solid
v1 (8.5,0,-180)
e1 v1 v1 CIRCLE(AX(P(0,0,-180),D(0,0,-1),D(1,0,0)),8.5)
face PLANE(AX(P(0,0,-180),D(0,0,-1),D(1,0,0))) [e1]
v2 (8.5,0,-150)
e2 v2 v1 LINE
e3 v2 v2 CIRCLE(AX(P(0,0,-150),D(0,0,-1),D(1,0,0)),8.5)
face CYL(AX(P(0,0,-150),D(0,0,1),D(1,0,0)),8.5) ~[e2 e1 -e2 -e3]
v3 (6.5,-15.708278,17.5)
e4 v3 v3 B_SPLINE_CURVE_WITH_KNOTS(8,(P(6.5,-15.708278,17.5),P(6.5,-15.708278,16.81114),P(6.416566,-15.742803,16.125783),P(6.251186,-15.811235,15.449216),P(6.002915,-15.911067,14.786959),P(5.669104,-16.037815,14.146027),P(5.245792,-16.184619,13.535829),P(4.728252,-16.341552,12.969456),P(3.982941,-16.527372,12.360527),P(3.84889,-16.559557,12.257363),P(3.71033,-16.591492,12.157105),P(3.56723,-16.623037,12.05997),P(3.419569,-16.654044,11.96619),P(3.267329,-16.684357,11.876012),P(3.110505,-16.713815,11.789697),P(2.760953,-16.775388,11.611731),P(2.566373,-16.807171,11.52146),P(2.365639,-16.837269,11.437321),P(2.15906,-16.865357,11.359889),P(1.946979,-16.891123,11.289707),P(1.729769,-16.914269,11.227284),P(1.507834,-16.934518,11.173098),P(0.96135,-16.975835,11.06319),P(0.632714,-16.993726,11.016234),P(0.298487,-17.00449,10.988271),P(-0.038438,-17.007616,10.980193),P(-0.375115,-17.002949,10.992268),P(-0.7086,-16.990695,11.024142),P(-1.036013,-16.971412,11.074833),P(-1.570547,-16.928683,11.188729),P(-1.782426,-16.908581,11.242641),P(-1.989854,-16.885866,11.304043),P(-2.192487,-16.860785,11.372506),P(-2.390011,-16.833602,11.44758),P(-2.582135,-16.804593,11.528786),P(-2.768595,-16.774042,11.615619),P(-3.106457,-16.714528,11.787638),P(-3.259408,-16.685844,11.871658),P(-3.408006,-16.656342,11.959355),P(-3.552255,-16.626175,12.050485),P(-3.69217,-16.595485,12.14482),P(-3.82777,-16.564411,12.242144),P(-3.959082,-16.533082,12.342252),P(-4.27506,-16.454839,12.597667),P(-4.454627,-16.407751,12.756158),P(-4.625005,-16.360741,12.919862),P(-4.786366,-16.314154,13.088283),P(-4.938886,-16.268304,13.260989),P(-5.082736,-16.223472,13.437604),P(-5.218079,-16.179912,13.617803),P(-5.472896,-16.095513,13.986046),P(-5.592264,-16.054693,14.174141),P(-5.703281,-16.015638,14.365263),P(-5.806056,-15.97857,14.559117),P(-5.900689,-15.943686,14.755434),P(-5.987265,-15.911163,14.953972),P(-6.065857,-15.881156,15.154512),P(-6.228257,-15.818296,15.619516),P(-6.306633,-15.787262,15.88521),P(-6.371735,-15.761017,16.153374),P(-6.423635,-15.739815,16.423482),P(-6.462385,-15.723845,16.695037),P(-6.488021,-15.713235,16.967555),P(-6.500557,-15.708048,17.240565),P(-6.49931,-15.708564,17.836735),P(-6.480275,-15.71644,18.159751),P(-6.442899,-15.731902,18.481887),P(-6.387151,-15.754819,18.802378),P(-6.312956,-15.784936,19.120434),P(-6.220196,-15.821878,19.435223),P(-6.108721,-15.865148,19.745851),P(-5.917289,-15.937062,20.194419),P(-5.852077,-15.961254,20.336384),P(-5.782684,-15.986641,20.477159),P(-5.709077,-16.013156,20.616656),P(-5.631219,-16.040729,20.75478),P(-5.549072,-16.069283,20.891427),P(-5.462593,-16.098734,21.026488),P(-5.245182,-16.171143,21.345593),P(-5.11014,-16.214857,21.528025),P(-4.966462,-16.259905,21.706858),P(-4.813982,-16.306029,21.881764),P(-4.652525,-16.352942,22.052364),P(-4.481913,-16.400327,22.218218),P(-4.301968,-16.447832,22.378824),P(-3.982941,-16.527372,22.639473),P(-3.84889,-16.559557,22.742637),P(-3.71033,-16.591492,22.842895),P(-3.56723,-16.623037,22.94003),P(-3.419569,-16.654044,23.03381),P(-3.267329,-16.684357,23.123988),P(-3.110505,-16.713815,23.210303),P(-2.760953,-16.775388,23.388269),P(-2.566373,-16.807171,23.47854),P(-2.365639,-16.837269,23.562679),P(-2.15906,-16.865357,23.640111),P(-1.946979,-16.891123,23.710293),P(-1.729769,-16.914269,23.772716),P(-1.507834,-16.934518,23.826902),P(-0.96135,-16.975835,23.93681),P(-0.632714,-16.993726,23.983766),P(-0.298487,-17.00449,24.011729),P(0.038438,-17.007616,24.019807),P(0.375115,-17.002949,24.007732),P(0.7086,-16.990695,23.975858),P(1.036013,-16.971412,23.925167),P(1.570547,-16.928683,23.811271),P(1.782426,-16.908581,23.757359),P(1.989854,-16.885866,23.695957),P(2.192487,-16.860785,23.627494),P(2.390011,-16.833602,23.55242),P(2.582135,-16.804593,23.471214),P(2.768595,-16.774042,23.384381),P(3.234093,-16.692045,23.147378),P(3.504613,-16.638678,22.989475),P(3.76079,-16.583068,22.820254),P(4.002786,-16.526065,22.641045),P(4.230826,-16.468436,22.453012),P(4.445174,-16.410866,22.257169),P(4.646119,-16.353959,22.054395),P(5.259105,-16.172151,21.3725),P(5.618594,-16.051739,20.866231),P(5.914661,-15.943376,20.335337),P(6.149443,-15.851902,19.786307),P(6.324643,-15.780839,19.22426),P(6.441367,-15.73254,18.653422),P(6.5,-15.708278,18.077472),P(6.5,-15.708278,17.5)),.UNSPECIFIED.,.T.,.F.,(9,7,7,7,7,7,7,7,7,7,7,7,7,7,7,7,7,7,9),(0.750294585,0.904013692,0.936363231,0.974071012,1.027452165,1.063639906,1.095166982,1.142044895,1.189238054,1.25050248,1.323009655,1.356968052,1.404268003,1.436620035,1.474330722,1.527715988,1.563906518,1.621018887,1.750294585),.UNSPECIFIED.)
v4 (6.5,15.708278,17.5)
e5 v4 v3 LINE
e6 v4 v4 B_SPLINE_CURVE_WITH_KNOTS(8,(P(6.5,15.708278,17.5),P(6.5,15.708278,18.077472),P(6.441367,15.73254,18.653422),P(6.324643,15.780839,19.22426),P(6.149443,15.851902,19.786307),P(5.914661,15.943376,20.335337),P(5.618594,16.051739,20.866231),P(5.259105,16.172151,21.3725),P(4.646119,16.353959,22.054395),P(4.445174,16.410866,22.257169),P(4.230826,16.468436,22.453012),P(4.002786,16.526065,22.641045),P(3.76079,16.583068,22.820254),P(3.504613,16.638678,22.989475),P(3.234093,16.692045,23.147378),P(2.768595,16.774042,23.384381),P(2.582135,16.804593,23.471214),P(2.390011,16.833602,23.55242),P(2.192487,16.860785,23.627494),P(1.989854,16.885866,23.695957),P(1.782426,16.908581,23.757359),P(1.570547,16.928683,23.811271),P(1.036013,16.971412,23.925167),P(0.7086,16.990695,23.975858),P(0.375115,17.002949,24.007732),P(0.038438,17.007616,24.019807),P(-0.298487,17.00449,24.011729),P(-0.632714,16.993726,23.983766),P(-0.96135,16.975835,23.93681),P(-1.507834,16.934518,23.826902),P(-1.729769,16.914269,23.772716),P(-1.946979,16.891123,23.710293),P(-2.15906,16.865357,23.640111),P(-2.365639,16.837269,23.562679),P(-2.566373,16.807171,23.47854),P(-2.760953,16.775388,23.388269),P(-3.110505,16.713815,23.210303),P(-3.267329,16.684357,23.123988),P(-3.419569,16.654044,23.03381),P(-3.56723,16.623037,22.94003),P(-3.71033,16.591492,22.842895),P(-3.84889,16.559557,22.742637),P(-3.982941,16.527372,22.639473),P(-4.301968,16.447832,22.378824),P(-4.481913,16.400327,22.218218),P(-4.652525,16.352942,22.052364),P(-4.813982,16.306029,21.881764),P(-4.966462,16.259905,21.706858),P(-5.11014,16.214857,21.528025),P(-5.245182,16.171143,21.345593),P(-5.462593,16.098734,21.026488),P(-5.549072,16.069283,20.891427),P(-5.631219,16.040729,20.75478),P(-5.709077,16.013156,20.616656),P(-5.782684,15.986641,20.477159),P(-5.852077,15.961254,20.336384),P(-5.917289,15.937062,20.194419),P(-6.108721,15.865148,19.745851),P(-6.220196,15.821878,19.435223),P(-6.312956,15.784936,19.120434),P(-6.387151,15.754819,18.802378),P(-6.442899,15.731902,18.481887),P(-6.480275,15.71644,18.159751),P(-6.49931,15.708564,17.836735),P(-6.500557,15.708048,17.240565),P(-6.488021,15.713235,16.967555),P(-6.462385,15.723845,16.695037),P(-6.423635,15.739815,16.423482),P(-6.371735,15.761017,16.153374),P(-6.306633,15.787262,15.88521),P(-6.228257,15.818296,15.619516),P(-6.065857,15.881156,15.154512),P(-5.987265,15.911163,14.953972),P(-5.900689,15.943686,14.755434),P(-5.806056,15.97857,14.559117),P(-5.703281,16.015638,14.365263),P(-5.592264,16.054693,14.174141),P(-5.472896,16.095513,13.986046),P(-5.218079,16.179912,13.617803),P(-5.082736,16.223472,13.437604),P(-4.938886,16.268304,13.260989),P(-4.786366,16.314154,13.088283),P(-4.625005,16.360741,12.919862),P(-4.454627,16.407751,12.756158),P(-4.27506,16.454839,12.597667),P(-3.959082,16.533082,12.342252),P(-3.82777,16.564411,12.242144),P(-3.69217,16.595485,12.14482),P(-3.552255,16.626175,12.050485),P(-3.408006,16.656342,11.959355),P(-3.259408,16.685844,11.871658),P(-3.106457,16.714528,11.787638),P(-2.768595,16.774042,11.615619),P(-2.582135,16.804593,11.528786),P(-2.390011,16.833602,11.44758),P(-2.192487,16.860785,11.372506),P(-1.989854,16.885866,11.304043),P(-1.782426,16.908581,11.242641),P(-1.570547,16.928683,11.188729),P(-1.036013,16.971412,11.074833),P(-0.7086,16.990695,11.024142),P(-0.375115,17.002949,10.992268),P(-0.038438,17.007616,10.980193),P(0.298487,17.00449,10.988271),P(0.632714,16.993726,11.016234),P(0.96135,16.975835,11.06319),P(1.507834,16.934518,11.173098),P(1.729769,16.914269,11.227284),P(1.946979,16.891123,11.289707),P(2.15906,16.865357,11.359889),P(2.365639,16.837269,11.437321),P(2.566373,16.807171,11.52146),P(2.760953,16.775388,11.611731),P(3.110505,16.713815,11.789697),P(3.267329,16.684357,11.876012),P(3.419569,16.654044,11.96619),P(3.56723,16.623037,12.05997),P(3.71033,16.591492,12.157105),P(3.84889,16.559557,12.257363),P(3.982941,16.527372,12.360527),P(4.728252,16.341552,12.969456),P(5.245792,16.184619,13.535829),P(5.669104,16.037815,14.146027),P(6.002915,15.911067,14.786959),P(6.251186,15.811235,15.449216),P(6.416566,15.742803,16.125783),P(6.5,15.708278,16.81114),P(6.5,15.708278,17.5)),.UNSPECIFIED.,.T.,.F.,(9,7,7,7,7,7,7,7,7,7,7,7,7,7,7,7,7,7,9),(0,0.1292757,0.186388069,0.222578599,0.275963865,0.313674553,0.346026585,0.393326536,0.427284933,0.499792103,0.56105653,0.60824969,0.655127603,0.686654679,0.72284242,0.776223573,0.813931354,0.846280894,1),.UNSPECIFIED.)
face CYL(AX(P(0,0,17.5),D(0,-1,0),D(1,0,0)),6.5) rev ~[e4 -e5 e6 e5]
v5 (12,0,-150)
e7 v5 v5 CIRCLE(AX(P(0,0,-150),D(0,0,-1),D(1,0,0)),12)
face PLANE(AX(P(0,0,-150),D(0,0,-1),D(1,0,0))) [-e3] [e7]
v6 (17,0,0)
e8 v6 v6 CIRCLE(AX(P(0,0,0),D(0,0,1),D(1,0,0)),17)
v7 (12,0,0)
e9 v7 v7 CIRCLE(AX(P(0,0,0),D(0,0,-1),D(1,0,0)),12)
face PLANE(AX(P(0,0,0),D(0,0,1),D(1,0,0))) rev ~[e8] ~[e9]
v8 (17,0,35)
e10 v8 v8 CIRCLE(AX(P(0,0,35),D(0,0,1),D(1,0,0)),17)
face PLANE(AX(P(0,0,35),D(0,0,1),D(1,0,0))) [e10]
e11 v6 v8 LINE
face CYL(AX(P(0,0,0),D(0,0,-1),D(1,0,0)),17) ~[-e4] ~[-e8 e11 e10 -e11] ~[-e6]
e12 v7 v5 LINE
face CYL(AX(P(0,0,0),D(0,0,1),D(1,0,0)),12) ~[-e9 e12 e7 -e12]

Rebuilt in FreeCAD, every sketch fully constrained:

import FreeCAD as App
import Part
import Sketcher

V = App.Vector

doc = App.newDocument("Part")
body = doc.addObject("PartDesign::Body", "Body")

sketch1 = body.newObject("Sketcher::SketchObject", "Sketch")
sketch1.AttachmentSupport = (doc.getObject("XY_Plane"), [""])
sketch1.MapMode = "FlatFace"
sketch1.addGeometry(Part.Circle(V(0, 0, 0), V(0, 0, 1), 17), False)
sketch1.addConstraint([
    Sketcher.Constraint("Coincident", 0, 3, -1, 1),
    Sketcher.Constraint("Diameter", 0, 34.0),
])
pad1 = body.newObject("PartDesign::Pad", "Pad")
pad1.Profile = sketch1
pad1.Length = 35

sketch2 = body.newObject("Sketcher::SketchObject", "Sketch001")
sketch2.AttachmentSupport = (doc.getObject("XY_Plane"), [""])
sketch2.MapMode = "FlatFace"
sketch2.addGeometry(Part.Circle(V(0, 0, 0), V(0, 0, 1), 12), False)
sketch2.addConstraint([
    Sketcher.Constraint("Coincident", 0, 3, -1, 1),
    Sketcher.Constraint("Diameter", 0, 24.0),
])
pad2 = body.newObject("PartDesign::Pad", "Pad001")
pad2.Profile = sketch2
pad2.Length = 150
pad2.Reversed = True

sketch3 = body.newObject("Sketcher::SketchObject", "Sketch002")
sketch3.AttachmentSupport = (doc.getObject("XY_Plane"), [""])
sketch3.MapMode = "FlatFace"
sketch3.AttachmentOffset = App.Placement(V(0, 0, -150), App.Rotation())
sketch3.addGeometry(Part.Circle(V(0, 0, 0), V(0, 0, 1), 8), False)
sketch3.addConstraint([
    Sketcher.Constraint("Coincident", 0, 3, -1, 1),
    Sketcher.Constraint("Diameter", 0, 17.0),
])
pad3 = body.newObject("PartDesign::Pad", "Pad002")
pad3.Profile = sketch3
pad3.Length = 30
pad3.Reversed = True

sketch4 = body.newObject("Sketcher::SketchObject", "Sketch003")
sketch4.AttachmentSupport = (doc.getObject("XZ_Plane"), [""])
sketch4.MapMode = "FlatFace"
sketch4.addGeometry(Part.Circle(V(0, 18, 0), V(0, 0, 1), 6), False)
sketch4.addConstraint([
    Sketcher.Constraint("PointOnObject", 0, 3, -2),
    Sketcher.Constraint("Diameter", 0, 13.0),
    Sketcher.Constraint("DistanceY", -1, 1, 0, 3, 17.5),
])
pocket1 = body.newObject("PartDesign::Pocket", "Pocket")
pocket1.Profile = sketch4
pocket1.Length = 34
pocket1.Midplane = True

doc.recompute()
